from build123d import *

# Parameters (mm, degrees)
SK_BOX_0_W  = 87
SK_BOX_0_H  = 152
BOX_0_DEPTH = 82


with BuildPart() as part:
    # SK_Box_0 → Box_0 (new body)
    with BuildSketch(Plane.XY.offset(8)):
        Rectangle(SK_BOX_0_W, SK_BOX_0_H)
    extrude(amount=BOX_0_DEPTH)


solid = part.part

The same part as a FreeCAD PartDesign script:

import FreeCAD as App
import Part
import Sketcher
Q = App.Units.Quantity


def add_polygon(sketch, points):
    """Adds a closed chain of lines whose ends are joined by coincident constraints."""
    first, n = sketch.GeometryCount, len(points)
    for a, b in zip(points, points[1:] + points[:1]):
        sketch.addGeometry(Part.LineSegment(App.Vector(*a, 0), App.Vector(*b, 0)), False)
    for i in range(n):
        sketch.addConstraint(Sketcher.Constraint("Coincident", first + i, 2, first + (i + 1) % n, 1))

doc = App.newDocument("Part")
body = doc.addObject("PartDesign::Body", "Body")

sketch1 = body.newObject("Sketcher::SketchObject", "Sketch")
sketch1.AttachmentSupport = (doc.getObject("XY_Plane"), [""])
sketch1.MapMode = "FlatFace"
sketch1.AttachmentOffset = App.Placement(App.Vector(0, 0, 8), App.Rotation())
add_polygon(sketch1, [(-44, 76), (-44, -76), (44, -76), (44, 76)])
sketch1.addConstraint([
    Sketcher.Constraint("Vertical", 0),
    Sketcher.Constraint("Horizontal", 1),
    Sketcher.Constraint("Vertical", 2),
    Sketcher.Constraint("Horizontal", 3),
    Sketcher.Constraint("Symmetric", 0, 2, 2, 2, -1, 1),
    Sketcher.Constraint("DistanceX", 1, 1, 1, 2, Q("87 mm")),
    Sketcher.Constraint("DistanceY", 0, 2, 0, 1, Q("152 mm")),
])
pad1 = body.newObject("PartDesign::Pad", "Pad")
pad1.Profile = sketch1
pad1.Length = 82

doc.recompute()
